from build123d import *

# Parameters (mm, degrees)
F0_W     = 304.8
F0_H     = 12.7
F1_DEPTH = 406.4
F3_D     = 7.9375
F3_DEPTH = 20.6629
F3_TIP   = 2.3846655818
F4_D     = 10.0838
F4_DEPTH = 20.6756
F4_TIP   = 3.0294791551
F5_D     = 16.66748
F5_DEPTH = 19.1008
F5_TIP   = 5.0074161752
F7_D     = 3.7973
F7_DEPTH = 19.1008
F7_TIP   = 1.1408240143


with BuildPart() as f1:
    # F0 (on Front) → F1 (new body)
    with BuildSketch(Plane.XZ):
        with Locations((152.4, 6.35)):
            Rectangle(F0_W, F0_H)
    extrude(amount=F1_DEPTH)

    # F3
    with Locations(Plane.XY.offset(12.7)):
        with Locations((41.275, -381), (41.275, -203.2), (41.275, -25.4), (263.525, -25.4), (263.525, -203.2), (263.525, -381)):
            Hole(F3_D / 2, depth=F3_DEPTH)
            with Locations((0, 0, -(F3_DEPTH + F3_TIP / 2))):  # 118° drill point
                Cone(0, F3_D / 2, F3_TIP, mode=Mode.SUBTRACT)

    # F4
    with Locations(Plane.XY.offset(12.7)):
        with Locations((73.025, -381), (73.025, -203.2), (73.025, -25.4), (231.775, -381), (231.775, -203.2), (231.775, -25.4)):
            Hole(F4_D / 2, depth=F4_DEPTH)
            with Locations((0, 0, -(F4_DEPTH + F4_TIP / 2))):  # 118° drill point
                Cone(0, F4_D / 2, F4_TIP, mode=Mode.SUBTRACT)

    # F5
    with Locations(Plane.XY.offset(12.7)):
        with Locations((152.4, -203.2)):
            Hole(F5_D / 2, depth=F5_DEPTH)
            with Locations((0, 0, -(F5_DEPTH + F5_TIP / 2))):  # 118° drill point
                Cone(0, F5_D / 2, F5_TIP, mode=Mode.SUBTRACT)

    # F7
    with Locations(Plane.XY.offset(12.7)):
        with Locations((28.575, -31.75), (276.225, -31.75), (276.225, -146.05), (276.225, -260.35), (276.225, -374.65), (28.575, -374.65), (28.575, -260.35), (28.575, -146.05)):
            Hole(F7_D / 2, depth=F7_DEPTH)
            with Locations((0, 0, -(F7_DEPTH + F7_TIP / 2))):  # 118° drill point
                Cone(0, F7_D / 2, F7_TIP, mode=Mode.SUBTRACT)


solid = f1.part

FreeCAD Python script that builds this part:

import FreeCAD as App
import Part
import Sketcher
from FreeCAD import Vector
Q = App.Units.Quantity

doc = App.newDocument("Part")
body = doc.addObject("PartDesign::Body", "Body")

# Sketch on XZ plane
sketch1 = body.newObject("Sketcher::SketchObject", "Sketch")
sketch1.AttachmentSupport = (doc.getObject("XZ_Plane"), [""])
sketch1.MapMode = "FlatFace"
sketch1.addGeometry([
    Part.LineSegment(Vector(0, 13, 0), Vector(0, 0, 0)),
    Part.LineSegment(Vector(0, 0, 0), Vector(305, 0, 0)),
    Part.LineSegment(Vector(305, 0, 0), Vector(305, 13, 0)),
    Part.LineSegment(Vector(305, 13, 0), Vector(0, 13, 0)),
], False)
sketch1.addConstraint([
    Sketcher.Constraint("Coincident", 0, 2, 1, 1),
    Sketcher.Constraint("Coincident", 1, 2, 2, 1),
    Sketcher.Constraint("Coincident", 2, 2, 3, 1),
    Sketcher.Constraint("Coincident", 3, 2, 0, 1),
    Sketcher.Constraint("Vertical", 0),
    Sketcher.Constraint("Horizontal", 1),
    Sketcher.Constraint("Vertical", 2),
    Sketcher.Constraint("Horizontal", 3),
    Sketcher.Constraint("Coincident", 0, 2, -1, 1),
    Sketcher.Constraint("DistanceX", 1, 1, 1, 2, Q("12 in")),
    Sketcher.Constraint("DistanceY", 0, 2, 0, 1, Q("0.5 in")),
])
pad1 = body.newObject("PartDesign::Pad", "Pad")
pad1.Profile = sketch1
pad1.Length = Q("16 in")

# Sketch on XY plane
sketch2 = body.newObject("Sketcher::SketchObject", "Sketch001")
sketch2.AttachmentSupport = (doc.getObject("XY_Plane"), [""])
sketch2.MapMode = "FlatFace"
sketch2.AttachmentOffset = App.Placement(Vector(0, 0, 0.5 * 25.4), App.Rotation())
sketch2.addGeometry([
    Part.Circle(Vector(41.3, -381, 0), Vector(0, 0, 1), 4),  # 0
    Part.Circle(Vector(41.3, -203.2, 0), Vector(0, 0, 1), 4),  # 1
    Part.Circle(Vector(41.3, -25.4, 0), Vector(0, 0, 1), 4),  # 2
    Part.Circle(Vector(263.5, -25.4, 0), Vector(0, 0, 1), 4),  # 3
    Part.Circle(Vector(263.5, -203.2, 0), Vector(0, 0, 1), 4),  # 4
    Part.Circle(Vector(263.5, -381, 0), Vector(0, 0, 1), 4),  # 5
], False)
sketch2.addConstraint([
    Sketcher.Constraint("Equal", 0, 1),
    Sketcher.Constraint("Equal", 1, 2),
    Sketcher.Constraint("Equal", 2, 3),
    Sketcher.Constraint("Equal", 3, 4),
    Sketcher.Constraint("Equal", 4, 5),
    Sketcher.Constraint("Horizontal", 2, 3, 3, 3),
    Sketcher.Constraint("Horizontal", 1, 3, 4, 3),
    Sketcher.Constraint("Horizontal", 0, 3, 5, 3),
    Sketcher.Constraint("Vertical", 0, 3, 1, 3),
    Sketcher.Constraint("Vertical", 1, 3, 2, 3),
    Sketcher.Constraint("Vertical", 3, 3, 4, 3),
    Sketcher.Constraint("Vertical", 4, 3, 5, 3),
    Sketcher.Constraint("Diameter", 0, Q("0.3125 in")),
    Sketcher.Constraint("DistanceY", 0, 3, -1, 1, Q("15 in")),
    Sketcher.Constraint("DistanceY", 1, 3, -1, 1, Q("8 in")),
    Sketcher.Constraint("DistanceY", 2, 3, -1, 1, Q("1 in")),
    Sketcher.Constraint("DistanceX", 2, 3, 3, 3, Q("8.75 in")),
    Sketcher.Constraint("DistanceX", -1, 1, 0, 3, Q("1.625 in")),
])
doc.recompute()
hole = body.newObject("PartDesign::Hole", "Hole")
hole.Profile = sketch2
hole.ThreadType = "None"
hole.Diameter = Q("0.3125 in")
hole.DepthType = "Dimension"
hole.Depth = Q("0.8135 in")
hole.DrillPoint = "Angled"
hole.DrillPointAngle = 118

# Sketch on XY plane
sketch3 = body.newObject("Sketcher::SketchObject", "Sketch002")
sketch3.AttachmentSupport = (doc.getObject("XY_Plane"), [""])
sketch3.MapMode = "FlatFace"
sketch3.AttachmentOffset = App.Placement(Vector(0, 0, 0.5 * 25.4), App.Rotation())
sketch3.addGeometry([
    Part.Circle(Vector(73, -381, 0), Vector(0, 0, 1), 5),  # 0
    Part.Circle(Vector(73, -203, 0), Vector(0, 0, 1), 5),  # 1
    Part.Circle(Vector(73, -25, 0), Vector(0, 0, 1), 5),  # 2
    Part.Circle(Vector(232, -381, 0), Vector(0, 0, 1), 5),  # 3
    Part.Circle(Vector(232, -203, 0), Vector(0, 0, 1), 5),  # 4
    Part.Circle(Vector(232, -25, 0), Vector(0, 0, 1), 5),  # 5
], False)
sketch3.addConstraint([
    Sketcher.Constraint("Equal", 0, 1),
    Sketcher.Constraint("Equal", 1, 2),
    Sketcher.Constraint("Equal", 2, 3),
    Sketcher.Constraint("Equal", 3, 4),
    Sketcher.Constraint("Equal", 4, 5),
    Sketcher.Constraint("Horizontal", 0, 3, 3, 3),
    Sketcher.Constraint("Horizontal", 1, 3, 4, 3),
    Sketcher.Constraint("Horizontal", 2, 3, 5, 3),
    Sketcher.Constraint("Vertical", 0, 3, 1, 3),
    Sketcher.Constraint("Vertical", 1, 3, 2, 3),
    Sketcher.Constraint("Vertical", 3, 3, 4, 3),
    Sketcher.Constraint("Vertical", 4, 3, 5, 3),
    Sketcher.Constraint("Diameter", 0, Q("0.397 in")),
    Sketcher.Constraint("DistanceY", 0, 3, -1, 1, Q("15 in")),
    Sketcher.Constraint("DistanceY", 1, 3, -1, 1, Q("8 in")),
    Sketcher.Constraint("DistanceY", 2, 3, -1, 1, Q("1 in")),
    Sketcher.Constraint("DistanceX", 0, 3, 3, 3, Q("6.25 in")),
    Sketcher.Constraint("DistanceX", -1, 1, 0, 3, Q("2.875 in")),
])
doc.recompute()
hole2 = body.newObject("PartDesign::Hole", "Hole001")
hole2.Profile = sketch3
hole2.ThreadType = "None"
hole2.Diameter = Q("0.397 in")
hole2.DepthType = "Dimension"
hole2.Depth = Q("0.814 in")
hole2.DrillPoint = "Angled"
hole2.DrillPointAngle = 118

# Sketch on XY plane
sketch4 = body.newObject("Sketcher::SketchObject", "Sketch003")
sketch4.AttachmentSupport = (doc.getObject("XY_Plane"), [""])
sketch4.MapMode = "FlatFace"
sketch4.AttachmentOffset = App.Placement(Vector(0, 0, 0.5 * 25.4), App.Rotation())
sketch4.addGeometry(Part.Circle(Vector(152, -203, 0), Vector(0, 0, 1), 8), False)
sketch4.addConstraint([
    Sketcher.Constraint("DistanceX", -1, 1, 0, 3, Q("6 in")),
    Sketcher.Constraint("DistanceY", 0, 3, -1, 1, Q("8 in")),
    Sketcher.Constraint("Diameter", 0, Q("0.6562 in")),
])
doc.recompute()
hole3 = body.newObject("PartDesign::Hole", "Hole002")
hole3.Profile = sketch4
hole3.ThreadType = "None"
hole3.Diameter = Q("0.6562 in")
hole3.DepthType = "Dimension"
hole3.Depth = Q("0.752 in")
hole3.DrillPoint = "Angled"
hole3.DrillPointAngle = 118

# Sketch on XY plane
sketch5 = body.newObject("Sketcher::SketchObject", "Sketch004")
sketch5.AttachmentSupport = (doc.getObject("XY_Plane"), [""])
sketch5.MapMode = "FlatFace"
sketch5.AttachmentOffset = App.Placement(Vector(0, 0, 0.5 * 25.4), App.Rotation())
sketch5.addGeometry([
    Part.Circle(Vector(28.6, -31.8, 0), Vector(0, 0, 1), 1.9),  # 0
    Part.Circle(Vector(276.2, -31.8, 0), Vector(0, 0, 1), 1.9),  # 1
    Part.Circle(Vector(276.2, -146.1, 0), Vector(0, 0, 1), 1.9),  # 2
    Part.Circle(Vector(276.2, -260.4, 0), Vector(0, 0, 1), 1.9),  # 3
    Part.Circle(Vector(276.2, -374.6, 0), Vector(0, 0, 1), 1.9),  # 4
    Part.Circle(Vector(28.6, -374.6, 0), Vector(0, 0, 1), 1.9),  # 5
    Part.Circle(Vector(28.6, -260.4, 0), Vector(0, 0, 1), 1.9),  # 6
    Part.Circle(Vector(28.6, -146.1, 0), Vector(0, 0, 1), 1.9),  # 7
], False)
sketch5.addConstraint([
    Sketcher.Constraint("Equal", 0, 1),
    Sketcher.Constraint("Equal", 1, 2),
    Sketcher.Constraint("Equal", 2, 3),
    Sketcher.Constraint("Equal", 3, 4),
    Sketcher.Constraint("Equal", 4, 5),
    Sketcher.Constraint("Equal", 5, 6),
    Sketcher.Constraint("Equal", 6, 7),
    Sketcher.Constraint("Horizontal", 0, 3, 1, 3),
    Sketcher.Constraint("Horizontal", 4, 3, 5, 3),
    Sketcher.Constraint("Horizontal", 3, 3, 6, 3),
    Sketcher.Constraint("Horizontal", 2, 3, 7, 3),
    Sketcher.Constraint("Vertical", 1, 3, 2, 3),
    Sketcher.Constraint("Vertical", 2, 3, 3, 3),
    Sketcher.Constraint("Vertical", 3, 3, 4, 3),
    Sketcher.Constraint("Vertical", 0, 3, 5, 3),
    Sketcher.Constraint("Vertical", 5, 3, 6, 3),
    Sketcher.Constraint("Vertical", 6, 3, 7, 3),
    Sketcher.Constraint("DistanceY", 3, 3, 1, 3, Q("9 in")),
    Sketcher.Constraint("DistanceY", 4, 3, 2, 3, Q("9 in")),
    Sketcher.Constraint("Diameter", 0, Q("0.1495 in")),
    Sketcher.Constraint("DistanceY", 2, 3, 1, 3, Q("4.5 in")),
    Sketcher.Constraint("DistanceY", 0, 3, -1, 1, Q("1.25 in")),
    Sketcher.Constraint("DistanceX", 0, 3, 1, 3, Q("9.75 in")),
    Sketcher.Constraint("DistanceX", -1, 1, 0, 3, Q("1.125 in")),
])
doc.recompute()
hole4 = body.newObject("PartDesign::Hole", "Hole003")
hole4.Profile = sketch5
hole4.ThreadType = "None"
hole4.Diameter = Q("0.1495 in")
hole4.DepthType = "Dimension"
hole4.Depth = Q("0.752 in")
hole4.DrillPoint = "Angled"
hole4.DrillPointAngle = 118

doc.recompute()
